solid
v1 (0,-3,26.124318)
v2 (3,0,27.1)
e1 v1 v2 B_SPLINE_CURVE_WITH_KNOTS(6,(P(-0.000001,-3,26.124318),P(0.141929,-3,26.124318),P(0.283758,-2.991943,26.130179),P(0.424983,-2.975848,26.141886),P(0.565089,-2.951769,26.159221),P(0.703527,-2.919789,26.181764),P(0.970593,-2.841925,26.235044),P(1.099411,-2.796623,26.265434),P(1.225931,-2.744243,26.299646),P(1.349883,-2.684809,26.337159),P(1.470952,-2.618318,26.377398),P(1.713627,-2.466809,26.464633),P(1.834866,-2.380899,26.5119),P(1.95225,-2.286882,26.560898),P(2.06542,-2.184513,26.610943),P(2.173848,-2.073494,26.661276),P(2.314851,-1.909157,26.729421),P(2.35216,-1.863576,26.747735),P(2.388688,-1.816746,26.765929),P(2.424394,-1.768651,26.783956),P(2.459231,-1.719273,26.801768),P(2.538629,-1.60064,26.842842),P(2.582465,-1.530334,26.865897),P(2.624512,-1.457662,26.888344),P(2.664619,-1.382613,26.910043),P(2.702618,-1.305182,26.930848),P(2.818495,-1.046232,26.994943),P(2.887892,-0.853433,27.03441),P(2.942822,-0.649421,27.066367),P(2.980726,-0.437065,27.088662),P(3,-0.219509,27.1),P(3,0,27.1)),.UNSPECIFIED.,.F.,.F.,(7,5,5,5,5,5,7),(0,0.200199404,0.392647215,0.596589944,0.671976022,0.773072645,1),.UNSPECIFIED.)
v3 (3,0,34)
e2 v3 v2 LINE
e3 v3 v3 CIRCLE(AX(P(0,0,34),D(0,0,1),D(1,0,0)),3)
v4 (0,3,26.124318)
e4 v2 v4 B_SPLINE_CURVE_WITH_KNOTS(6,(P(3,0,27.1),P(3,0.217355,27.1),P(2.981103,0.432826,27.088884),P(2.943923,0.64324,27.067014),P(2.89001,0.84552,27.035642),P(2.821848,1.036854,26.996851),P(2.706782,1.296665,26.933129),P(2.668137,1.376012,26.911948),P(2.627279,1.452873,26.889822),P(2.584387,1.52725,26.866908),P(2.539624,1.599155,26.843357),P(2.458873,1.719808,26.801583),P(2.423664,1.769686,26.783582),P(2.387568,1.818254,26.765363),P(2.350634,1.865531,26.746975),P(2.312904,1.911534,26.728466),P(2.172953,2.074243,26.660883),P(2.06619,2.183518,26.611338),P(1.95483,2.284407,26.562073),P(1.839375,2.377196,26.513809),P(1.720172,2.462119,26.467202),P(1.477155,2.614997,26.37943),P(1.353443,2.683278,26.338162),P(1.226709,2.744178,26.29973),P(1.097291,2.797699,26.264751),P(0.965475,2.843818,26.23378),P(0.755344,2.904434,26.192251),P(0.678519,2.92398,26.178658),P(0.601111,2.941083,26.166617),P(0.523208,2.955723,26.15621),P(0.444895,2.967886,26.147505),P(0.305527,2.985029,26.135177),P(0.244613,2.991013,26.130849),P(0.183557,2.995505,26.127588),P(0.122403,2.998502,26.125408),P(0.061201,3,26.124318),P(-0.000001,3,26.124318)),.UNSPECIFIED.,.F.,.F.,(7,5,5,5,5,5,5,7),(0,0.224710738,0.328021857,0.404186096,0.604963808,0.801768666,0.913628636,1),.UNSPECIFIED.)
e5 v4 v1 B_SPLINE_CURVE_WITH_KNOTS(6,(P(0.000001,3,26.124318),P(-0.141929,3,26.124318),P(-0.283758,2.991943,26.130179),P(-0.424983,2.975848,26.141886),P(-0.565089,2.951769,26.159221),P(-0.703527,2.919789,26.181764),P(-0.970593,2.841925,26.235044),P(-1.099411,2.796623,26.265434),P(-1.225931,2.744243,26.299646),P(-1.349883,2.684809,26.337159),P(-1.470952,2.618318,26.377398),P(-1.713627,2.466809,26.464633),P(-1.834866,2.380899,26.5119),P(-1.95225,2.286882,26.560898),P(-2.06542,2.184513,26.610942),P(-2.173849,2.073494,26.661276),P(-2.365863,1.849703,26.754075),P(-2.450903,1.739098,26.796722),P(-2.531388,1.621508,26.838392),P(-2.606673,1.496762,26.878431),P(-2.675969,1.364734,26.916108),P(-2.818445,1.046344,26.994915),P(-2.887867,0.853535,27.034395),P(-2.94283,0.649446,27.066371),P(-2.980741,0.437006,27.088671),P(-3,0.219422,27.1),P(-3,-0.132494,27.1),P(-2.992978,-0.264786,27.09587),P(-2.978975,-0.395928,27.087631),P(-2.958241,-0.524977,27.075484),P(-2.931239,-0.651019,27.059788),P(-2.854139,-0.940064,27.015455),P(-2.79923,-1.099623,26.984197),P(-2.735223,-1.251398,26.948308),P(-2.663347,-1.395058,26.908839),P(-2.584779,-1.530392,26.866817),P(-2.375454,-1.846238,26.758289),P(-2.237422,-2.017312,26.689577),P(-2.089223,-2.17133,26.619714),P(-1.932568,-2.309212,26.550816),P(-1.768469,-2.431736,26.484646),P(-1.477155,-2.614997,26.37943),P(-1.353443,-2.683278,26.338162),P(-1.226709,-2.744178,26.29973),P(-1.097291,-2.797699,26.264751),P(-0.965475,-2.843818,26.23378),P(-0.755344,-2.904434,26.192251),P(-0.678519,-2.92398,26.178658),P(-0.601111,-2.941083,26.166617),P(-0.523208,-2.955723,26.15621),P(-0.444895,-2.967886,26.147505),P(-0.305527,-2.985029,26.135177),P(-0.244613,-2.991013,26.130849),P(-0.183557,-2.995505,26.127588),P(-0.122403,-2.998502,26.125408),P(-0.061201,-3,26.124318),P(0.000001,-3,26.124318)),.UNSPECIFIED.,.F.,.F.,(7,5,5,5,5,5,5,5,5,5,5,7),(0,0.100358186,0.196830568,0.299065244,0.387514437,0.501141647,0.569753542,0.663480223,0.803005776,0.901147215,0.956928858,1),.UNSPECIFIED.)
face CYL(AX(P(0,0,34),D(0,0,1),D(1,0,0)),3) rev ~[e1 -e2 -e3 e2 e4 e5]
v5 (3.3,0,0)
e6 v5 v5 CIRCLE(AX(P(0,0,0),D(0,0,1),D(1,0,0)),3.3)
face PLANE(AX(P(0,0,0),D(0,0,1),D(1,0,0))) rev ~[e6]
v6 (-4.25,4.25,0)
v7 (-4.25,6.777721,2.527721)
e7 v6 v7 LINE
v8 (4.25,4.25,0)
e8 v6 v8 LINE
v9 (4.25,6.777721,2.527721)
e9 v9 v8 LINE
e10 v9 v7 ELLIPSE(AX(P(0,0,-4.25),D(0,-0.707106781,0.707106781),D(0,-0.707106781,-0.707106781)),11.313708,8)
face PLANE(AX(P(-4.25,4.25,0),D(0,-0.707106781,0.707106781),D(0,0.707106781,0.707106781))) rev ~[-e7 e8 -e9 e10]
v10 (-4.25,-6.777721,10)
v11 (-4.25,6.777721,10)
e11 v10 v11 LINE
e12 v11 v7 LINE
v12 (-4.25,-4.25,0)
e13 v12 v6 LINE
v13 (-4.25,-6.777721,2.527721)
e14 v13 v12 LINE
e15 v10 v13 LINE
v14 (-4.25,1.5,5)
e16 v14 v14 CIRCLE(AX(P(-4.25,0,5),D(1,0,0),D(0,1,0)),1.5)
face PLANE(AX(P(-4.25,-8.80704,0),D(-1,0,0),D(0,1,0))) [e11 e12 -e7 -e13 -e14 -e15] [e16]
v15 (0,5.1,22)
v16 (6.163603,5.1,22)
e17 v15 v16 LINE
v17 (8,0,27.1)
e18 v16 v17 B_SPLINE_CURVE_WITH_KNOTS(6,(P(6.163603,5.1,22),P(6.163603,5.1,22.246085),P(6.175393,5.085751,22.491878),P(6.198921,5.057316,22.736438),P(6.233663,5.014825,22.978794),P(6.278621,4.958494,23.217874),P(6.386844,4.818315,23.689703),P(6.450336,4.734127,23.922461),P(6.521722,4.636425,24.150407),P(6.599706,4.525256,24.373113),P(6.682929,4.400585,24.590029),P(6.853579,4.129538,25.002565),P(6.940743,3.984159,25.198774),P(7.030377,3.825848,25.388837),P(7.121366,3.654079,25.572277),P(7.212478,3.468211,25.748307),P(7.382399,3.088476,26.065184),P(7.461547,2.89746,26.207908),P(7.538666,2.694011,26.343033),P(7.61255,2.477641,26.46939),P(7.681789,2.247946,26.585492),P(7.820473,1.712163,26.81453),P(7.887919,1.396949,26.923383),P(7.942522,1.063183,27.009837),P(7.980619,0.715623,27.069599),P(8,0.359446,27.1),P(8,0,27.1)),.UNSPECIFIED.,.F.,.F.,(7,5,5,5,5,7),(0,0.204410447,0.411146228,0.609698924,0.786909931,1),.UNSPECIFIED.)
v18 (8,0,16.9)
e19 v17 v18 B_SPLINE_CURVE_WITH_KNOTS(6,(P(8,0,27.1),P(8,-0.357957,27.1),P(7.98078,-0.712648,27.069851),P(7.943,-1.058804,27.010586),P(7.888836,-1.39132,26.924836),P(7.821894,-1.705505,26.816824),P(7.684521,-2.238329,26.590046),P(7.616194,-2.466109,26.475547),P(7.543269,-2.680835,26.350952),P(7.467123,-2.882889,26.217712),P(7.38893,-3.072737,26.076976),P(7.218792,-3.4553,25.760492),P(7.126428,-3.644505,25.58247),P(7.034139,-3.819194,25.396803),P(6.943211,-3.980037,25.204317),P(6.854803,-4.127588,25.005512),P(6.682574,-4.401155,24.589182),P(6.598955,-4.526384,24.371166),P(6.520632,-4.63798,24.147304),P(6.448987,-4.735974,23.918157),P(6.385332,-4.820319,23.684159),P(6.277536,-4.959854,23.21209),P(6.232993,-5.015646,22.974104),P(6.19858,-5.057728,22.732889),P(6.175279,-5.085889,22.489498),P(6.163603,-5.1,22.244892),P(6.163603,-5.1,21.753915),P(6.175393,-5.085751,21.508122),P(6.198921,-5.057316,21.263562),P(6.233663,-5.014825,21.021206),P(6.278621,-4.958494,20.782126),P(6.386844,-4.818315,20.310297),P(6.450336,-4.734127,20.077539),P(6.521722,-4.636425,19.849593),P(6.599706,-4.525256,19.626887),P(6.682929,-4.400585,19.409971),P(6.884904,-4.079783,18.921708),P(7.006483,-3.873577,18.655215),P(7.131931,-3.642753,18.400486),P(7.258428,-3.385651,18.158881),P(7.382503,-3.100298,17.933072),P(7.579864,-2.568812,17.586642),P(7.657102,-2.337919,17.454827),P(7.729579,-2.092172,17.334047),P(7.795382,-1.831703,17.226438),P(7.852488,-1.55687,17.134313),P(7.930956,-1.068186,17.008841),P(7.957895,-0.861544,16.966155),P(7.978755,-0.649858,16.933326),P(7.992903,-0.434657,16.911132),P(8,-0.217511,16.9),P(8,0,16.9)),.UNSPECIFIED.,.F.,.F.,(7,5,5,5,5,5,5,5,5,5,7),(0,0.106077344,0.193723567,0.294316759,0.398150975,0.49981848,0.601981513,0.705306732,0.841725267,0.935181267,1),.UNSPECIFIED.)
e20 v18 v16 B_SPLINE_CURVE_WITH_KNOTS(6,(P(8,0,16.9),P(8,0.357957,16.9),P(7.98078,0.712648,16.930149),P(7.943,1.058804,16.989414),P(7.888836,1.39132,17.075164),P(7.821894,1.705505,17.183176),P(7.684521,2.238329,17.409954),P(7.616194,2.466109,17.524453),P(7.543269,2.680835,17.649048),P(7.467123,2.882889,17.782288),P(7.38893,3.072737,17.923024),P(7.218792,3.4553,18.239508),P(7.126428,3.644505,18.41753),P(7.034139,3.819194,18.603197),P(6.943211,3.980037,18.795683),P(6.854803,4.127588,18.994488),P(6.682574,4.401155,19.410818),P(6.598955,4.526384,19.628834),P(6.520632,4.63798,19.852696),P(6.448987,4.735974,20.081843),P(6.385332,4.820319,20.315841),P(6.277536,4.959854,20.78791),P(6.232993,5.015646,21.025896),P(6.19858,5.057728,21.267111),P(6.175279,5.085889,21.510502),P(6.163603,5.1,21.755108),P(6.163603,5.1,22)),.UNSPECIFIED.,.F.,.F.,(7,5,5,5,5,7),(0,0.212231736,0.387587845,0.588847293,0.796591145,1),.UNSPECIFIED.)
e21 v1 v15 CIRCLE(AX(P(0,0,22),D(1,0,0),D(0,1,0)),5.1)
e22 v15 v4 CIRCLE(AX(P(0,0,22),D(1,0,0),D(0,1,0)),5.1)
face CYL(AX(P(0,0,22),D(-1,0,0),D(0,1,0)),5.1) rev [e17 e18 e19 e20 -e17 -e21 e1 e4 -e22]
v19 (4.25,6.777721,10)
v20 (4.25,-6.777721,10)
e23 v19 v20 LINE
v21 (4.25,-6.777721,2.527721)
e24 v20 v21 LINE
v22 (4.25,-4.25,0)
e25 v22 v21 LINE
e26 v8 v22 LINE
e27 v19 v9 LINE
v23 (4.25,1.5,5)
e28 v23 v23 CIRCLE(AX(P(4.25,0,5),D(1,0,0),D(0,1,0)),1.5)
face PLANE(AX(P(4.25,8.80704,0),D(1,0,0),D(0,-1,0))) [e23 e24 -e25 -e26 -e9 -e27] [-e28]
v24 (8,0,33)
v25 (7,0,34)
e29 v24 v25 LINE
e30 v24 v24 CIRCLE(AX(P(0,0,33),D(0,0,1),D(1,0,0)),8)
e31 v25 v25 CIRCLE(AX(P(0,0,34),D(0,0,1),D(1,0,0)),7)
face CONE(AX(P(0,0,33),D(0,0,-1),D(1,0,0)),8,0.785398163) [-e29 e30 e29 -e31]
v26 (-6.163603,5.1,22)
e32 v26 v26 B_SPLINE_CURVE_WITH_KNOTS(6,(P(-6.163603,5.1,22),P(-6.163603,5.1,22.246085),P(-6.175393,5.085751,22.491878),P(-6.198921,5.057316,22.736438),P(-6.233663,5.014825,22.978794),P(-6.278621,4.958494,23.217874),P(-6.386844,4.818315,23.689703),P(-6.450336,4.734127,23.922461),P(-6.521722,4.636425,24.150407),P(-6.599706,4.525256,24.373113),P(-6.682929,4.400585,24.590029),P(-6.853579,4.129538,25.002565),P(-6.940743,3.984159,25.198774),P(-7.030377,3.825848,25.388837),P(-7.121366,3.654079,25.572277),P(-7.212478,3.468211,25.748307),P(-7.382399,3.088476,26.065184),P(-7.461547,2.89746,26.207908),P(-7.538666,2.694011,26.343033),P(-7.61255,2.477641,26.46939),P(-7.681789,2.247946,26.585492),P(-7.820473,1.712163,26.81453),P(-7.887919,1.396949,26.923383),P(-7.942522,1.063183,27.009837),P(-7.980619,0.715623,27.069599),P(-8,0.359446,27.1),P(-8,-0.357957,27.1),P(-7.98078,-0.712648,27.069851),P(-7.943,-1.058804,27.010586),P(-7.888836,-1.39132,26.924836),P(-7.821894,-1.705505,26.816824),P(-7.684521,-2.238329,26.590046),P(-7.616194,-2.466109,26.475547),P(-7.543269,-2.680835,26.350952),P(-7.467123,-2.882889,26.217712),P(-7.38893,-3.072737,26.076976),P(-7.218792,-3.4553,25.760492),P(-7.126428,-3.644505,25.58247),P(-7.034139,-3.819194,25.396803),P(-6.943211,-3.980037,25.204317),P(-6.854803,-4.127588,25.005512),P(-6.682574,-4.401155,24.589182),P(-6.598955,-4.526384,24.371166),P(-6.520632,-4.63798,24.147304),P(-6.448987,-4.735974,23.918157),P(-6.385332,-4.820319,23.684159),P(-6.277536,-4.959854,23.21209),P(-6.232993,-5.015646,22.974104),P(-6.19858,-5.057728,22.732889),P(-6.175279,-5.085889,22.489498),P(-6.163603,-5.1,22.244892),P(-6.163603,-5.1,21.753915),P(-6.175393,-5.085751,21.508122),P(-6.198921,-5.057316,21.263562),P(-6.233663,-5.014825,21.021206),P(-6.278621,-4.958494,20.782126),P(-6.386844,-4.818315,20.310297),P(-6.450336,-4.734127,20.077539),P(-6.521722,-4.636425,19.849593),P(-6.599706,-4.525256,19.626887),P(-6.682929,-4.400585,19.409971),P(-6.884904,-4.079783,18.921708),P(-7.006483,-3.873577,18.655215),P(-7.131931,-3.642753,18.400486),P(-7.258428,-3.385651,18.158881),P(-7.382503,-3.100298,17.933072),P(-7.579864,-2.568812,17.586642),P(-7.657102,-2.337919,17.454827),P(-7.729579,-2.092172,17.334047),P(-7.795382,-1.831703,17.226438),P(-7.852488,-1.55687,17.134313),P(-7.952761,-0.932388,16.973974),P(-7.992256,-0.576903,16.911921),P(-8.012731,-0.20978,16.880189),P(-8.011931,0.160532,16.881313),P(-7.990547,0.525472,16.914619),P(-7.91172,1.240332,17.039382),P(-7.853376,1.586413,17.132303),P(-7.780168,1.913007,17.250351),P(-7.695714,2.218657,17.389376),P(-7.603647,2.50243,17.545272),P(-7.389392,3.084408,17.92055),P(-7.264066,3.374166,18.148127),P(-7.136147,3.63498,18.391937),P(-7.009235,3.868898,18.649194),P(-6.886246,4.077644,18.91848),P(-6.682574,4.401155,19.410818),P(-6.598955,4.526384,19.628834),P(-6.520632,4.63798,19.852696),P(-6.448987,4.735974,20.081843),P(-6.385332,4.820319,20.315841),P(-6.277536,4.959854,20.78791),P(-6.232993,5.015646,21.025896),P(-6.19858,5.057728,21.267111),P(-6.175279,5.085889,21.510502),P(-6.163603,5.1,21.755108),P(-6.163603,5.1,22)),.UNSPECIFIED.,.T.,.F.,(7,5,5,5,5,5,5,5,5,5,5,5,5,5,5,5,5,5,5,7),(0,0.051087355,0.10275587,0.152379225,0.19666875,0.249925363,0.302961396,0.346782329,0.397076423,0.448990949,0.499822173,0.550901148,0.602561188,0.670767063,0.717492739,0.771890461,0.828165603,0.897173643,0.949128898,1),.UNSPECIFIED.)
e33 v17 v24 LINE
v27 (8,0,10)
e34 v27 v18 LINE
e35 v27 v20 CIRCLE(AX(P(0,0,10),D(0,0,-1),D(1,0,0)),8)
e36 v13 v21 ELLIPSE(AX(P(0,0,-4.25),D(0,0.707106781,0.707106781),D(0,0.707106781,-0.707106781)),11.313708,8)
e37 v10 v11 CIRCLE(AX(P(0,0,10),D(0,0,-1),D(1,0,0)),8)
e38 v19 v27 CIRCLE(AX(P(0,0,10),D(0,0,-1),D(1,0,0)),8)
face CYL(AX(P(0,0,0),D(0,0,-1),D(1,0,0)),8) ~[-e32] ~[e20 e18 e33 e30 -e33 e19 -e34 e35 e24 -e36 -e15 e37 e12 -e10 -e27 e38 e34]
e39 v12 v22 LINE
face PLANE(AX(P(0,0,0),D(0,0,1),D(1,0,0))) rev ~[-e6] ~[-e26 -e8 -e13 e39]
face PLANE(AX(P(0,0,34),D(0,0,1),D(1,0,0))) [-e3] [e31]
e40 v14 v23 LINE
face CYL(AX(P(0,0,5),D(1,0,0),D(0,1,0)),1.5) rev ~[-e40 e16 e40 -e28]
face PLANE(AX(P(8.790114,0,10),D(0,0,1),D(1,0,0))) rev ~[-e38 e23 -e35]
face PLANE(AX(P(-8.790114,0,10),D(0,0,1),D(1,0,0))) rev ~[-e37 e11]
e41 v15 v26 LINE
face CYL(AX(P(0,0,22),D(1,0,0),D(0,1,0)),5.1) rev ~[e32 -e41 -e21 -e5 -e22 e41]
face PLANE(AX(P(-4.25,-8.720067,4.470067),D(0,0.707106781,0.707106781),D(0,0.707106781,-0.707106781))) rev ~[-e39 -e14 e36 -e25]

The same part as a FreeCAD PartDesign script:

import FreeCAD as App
import Part
import Sketcher
from FreeCAD import Vector
Q = App.Units.Quantity


def edges_at(feature, points):
    """Names of the edges that pass closest to the given points."""
    edges = feature.Shape.Edges
    near = lambda p: min(range(len(edges)), key=lambda i: edges[i].distToShape(Part.Vertex(*p))[0])
    return sorted({f"Edge{near(p) + 1}" for p in points})


def add_polygon(sketch, points):
    """Adds a closed chain of lines whose ends are joined by coincident constraints."""
    first, n = sketch.GeometryCount, len(points)
    for a, b in zip(points, points[1:] + points[:1]):
        sketch.addGeometry(Part.LineSegment(App.Vector(*a, 0), App.Vector(*b, 0)), False)
    for i in range(n):
        sketch.addConstraint(Sketcher.Constraint("Coincident", first + i, 2, first + (i + 1) % n, 1))

doc = App.newDocument("Part")
body = doc.addObject("PartDesign::Body", "Body")

# Sketch on XY plane
sketch1 = body.newObject("Sketcher::SketchObject", "Sketch")
sketch1.AttachmentSupport = (doc.getObject("XY_Plane"), [""])
sketch1.MapMode = "FlatFace"
sketch1.addGeometry(Part.Circle(Vector(0, 0, 0), Vector(0, 0, 1), 8), False)
sketch1.addConstraint([
    Sketcher.Constraint("Coincident", 0, 3, -1, 1),
    Sketcher.Constraint("Diameter", 0, 16.0),
])
pad1 = body.newObject("PartDesign::Pad", "Pad")
pad1.Profile = sketch1
pad1.Length = 34

# Sketch on YZ plane
sketch2 = body.newObject("Sketcher::SketchObject", "Sketch001")
sketch2.AttachmentSupport = (doc.getObject("YZ_Plane"), [""])
sketch2.MapMode = "FlatFace"
sketch2.addGeometry([
    Part.Circle(Vector(0, 22, 0), Vector(0, 0, 1), 5.1),
    Part.Circle(Vector(0, 5, 0), Vector(0, 0, 1), 1.5),
], False)
sketch2.addConstraint([
    Sketcher.Constraint("PointOnObject", 0, 3, -2),
    Sketcher.Constraint("PointOnObject", 1, 3, -2),
    Sketcher.Constraint("Diameter", 1, 3.0),
    Sketcher.Constraint("Diameter", 0, 10.2),
    Sketcher.Constraint("DistanceY", -1, 1, 0, 3, 22.0),
    Sketcher.Constraint("DistanceY", -1, 1, 1, 3, 5.0),
])
pocket1 = body.newObject("PartDesign::Pocket", "Pocket")
pocket1.Profile = sketch2
pocket1.Length = 100
pocket1.Midplane = True
doc.recompute()

chamfer = body.newObject("PartDesign::Chamfer", "Chamfer")
chamfer.Base = (pocket1, edges_at(pocket1, [(-8, 0, 34)]))
chamfer.Size = 1

# Sketch on XY plane
sketch3 = body.newObject("Sketcher::SketchObject", "Sketch002")
sketch3.AttachmentSupport = (doc.getObject("XY_Plane"), [""])
sketch3.MapMode = "FlatFace"
add_polygon(sketch3, [(13, -9), (13, 9), (4, 9), (4, -9)])  # lines 0-3
add_polygon(sketch3, [(-4, 9), (-13, 9), (-13, -9), (-4, -9)])  # lines 4-7
sketch3.addConstraint([
    Sketcher.Constraint("Vertical", 0),
    Sketcher.Constraint("Horizontal", 1),
    Sketcher.Constraint("Vertical", 2),
    Sketcher.Constraint("Horizontal", 3),
    Sketcher.Constraint("Horizontal", 4),
    Sketcher.Constraint("Vertical", 5),
    Sketcher.Constraint("Horizontal", 6),
    Sketcher.Constraint("Vertical", 7),
    Sketcher.Constraint("Symmetric", 3, 2, 4, 2, -1, 1),
    Sketcher.Constraint("Symmetric", 1, 2, 6, 2, -1, 1),
    Sketcher.Constraint("Horizontal", 1, 2, 4, 2),
    Sketcher.Constraint("DistanceX", 6, 2, 2, 2, 8.5),
    Sketcher.Constraint("DistanceX", 1, 2, 1, 1, 9.080229),
    Sketcher.Constraint("DistanceY", 0, 1, 0, 2, 17.61408),
])
pocket2 = body.newObject("PartDesign::Pocket", "Pocket001")
pocket2.Profile = sketch3
pocket2.Length = 10
pocket2.Reversed = True

# Sketch on YZ plane
sketch4 = body.newObject("Sketcher::SketchObject", "Sketch003")
sketch4.AttachmentSupport = (doc.getObject("YZ_Plane"), [""])
sketch4.MapMode = "FlatFace"
sketch4.AttachmentOffset = App.Placement(Vector(0, 0, -4.25), App.Rotation())
add_polygon(sketch4, [(9.4, 0), (4.2, 0), (9.1, 4.8)])  # lines 0-2
add_polygon(sketch4, [(-8.7, 4.5), (-4.2, 0), (-10.1, 0)])  # lines 3-5
sketch4.addConstraint([
    Sketcher.Constraint("Horizontal", 0),
    Sketcher.Constraint("Horizontal", 4),
    Sketcher.Constraint("Symmetric", 0, 2, 3, 2, -1, 1),
    Sketcher.Constraint("PointOnObject", 0, 2, -1),
    Sketcher.Constraint("Perpendicular", 1, 3),
    Sketcher.Constraint("Angle", 1, Q("45 deg")),
    Sketcher.Constraint("DistanceX", 3, 2, 0, 2, 8.5),
    Sketcher.Constraint("Distance", 3, 6.321629),
    Sketcher.Constraint("Distance", 5, 4.691571),
    Sketcher.Constraint("DistanceX", 0, 2, 0, 1, 5.146474),
    Sketcher.Constraint("DistanceX", 4, 2, 1, 2, 19.243562),
])
pocket3 = body.newObject("PartDesign::Pocket", "Pocket002")
pocket3.Profile = sketch4
pocket3.Length = 25
pocket3.Reversed = True

# Sketch on XY plane
sketch5 = body.newObject("Sketcher::SketchObject", "Sketch004")
sketch5.AttachmentSupport = (doc.getObject("XY_Plane"), [""])
sketch5.MapMode = "FlatFace"
sketch5.addGeometry(Part.Circle(Vector(0, 0, 0), Vector(0, 0, 1), 3.3), False)
sketch5.addConstraint([
    Sketcher.Constraint("Coincident", 0, 3, -1, 1),
    Sketcher.Constraint("Diameter", 0, 6.6),
])
pocket4 = body.newObject("PartDesign::Pocket", "Pocket003")
pocket4.Profile = sketch5
pocket4.Length = 12

# Sketch on XY plane
sketch6 = body.newObject("Sketcher::SketchObject", "Sketch005")
sketch6.AttachmentSupport = (doc.getObject("XY_Plane"), [""])
sketch6.MapMode = "FlatFace"
sketch6.AttachmentOffset = App.Placement(Vector(0, 0, 34), App.Rotation())
sketch6.addGeometry(Part.Circle(Vector(0, 0, 0), Vector(0, 0, 1), 3), False)
sketch6.addConstraint([
    Sketcher.Constraint("Coincident", 0, 3, -1, 1),
    Sketcher.Constraint("Diameter", 0, 6.0),
])
pocket5 = body.newObject("PartDesign::Pocket", "Pocket004")
pocket5.Profile = sketch6
pocket5.Length = 12

doc.recompute()
